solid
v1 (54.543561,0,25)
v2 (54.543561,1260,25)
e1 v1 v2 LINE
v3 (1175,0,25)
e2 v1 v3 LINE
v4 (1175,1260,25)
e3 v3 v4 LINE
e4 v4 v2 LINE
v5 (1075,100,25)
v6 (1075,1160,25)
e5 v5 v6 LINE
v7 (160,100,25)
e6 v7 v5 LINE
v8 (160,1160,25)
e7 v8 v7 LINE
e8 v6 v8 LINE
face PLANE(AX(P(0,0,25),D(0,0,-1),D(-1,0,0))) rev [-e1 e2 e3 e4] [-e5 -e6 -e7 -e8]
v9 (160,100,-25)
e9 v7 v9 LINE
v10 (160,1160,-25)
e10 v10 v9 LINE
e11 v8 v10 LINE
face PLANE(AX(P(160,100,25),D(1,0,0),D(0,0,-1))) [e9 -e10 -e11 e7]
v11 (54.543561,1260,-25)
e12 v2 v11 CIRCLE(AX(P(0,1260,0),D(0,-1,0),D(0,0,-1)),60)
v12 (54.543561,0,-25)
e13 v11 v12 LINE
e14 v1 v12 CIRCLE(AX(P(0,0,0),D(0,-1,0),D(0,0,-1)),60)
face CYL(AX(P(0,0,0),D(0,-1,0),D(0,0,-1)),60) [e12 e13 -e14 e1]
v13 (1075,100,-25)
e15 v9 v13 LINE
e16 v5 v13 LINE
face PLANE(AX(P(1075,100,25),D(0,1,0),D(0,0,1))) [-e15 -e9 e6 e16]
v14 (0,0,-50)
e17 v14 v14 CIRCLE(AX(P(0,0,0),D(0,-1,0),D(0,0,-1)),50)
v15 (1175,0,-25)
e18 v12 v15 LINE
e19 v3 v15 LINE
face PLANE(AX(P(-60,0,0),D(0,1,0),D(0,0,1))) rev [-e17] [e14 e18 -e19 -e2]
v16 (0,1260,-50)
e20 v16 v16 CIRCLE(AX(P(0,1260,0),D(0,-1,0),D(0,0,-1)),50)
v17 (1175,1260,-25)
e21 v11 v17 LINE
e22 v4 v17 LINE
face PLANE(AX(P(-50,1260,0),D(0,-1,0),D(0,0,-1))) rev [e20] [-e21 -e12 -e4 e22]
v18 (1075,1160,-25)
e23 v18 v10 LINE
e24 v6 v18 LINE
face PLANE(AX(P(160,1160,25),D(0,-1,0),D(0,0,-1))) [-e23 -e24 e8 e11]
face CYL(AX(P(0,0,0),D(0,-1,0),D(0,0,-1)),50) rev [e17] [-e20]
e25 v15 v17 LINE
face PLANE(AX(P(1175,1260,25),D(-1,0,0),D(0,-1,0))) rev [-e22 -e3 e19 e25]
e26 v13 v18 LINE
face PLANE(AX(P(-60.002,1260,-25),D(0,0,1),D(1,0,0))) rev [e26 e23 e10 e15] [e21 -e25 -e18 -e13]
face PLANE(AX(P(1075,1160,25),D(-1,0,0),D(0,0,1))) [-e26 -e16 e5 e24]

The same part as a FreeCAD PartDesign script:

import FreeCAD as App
import Part
import Sketcher
Q = App.Units.Quantity

doc = App.newDocument("Part")
body = doc.addObject("PartDesign::Body", "Body")

# Sketch on XY plane
sketch1 = doc.addObject("Sketcher::SketchObject", "Sketch")
body.addObject(sketch1)
sketch1.AttachmentSupport = (doc.XY_Plane, [""])
sketch1.MapMode = "FlatFace"
sketch1.addGeometry([
    Part.LineSegment(App.Vector(-60, 1260, 0), App.Vector(-60, 0, 0)),
    Part.LineSegment(App.Vector(-60, 0, 0), App.Vector(-50, 0, 0)),
    Part.LineSegment(App.Vector(-50, 0, 0), App.Vector(-50, 1260, 0)),
    Part.LineSegment(App.Vector(-50, 1260, 0), App.Vector(-60, 1260, 0)),
], False)
sketch1.addConstraint([
    Sketcher.Constraint("Coincident", 0, 2, 1, 1),
    Sketcher.Constraint("Coincident", 1, 2, 2, 1),
    Sketcher.Constraint("Coincident", 2, 2, 3, 1),
    Sketcher.Constraint("Coincident", 3, 2, 0, 1),
    Sketcher.Constraint("Vertical", 0),
    Sketcher.Constraint("Horizontal", 1),
    Sketcher.Constraint("Vertical", 2),
    Sketcher.Constraint("Horizontal", 3),
    Sketcher.Constraint("PointOnObject", 0, 2, -1),
    Sketcher.Constraint("DistanceX", 1, 1, 1, 2, Q("10 mm")),
    Sketcher.Constraint("DistanceY", 0, 2, 0, 1, Q("1260 mm")),
    Sketcher.Constraint("DistanceX", 0, 2, -1, 1, Q("60 mm")),
])
revolution = doc.addObject("PartDesign::Revolution", "Revolution")
body.addObject(revolution)
revolution.Profile = sketch1
revolution.ReferenceAxis = (sketch1, ["V_Axis"])
revolution.Angle = 360
body2 = doc.addObject("PartDesign::Body", "Body001")

# Sketch on XY plane
sketch2 = doc.addObject("Sketcher::SketchObject", "Sketch001")
body2.addObject(sketch2)
sketch2.AttachmentSupport = (doc.getObject("XY_Plane001"), [""])
sketch2.MapMode = "FlatFace"
sketch2.addGeometry([
    Part.LineSegment(App.Vector(60, 1260, 0), App.Vector(60, 0, 0)),  # 0
    Part.LineSegment(App.Vector(60, 0, 0), App.Vector(1175, 0, 0)),  # 1
    Part.LineSegment(App.Vector(1175, 0, 0), App.Vector(1175, 1260, 0)),  # 2
    Part.LineSegment(App.Vector(1175, 1260, 0), App.Vector(60, 1260, 0)),  # 3
    Part.LineSegment(App.Vector(1075, 100, 0), App.Vector(160, 100, 0)),  # 4
    Part.LineSegment(App.Vector(160, 100, 0), App.Vector(160, 1160, 0)),  # 5
    Part.LineSegment(App.Vector(160, 1160, 0), App.Vector(1075, 1160, 0)),  # 6
    Part.LineSegment(App.Vector(1075, 1160, 0), App.Vector(1075, 100, 0)),  # 7
], False)
sketch2.addConstraint([
    Sketcher.Constraint("Coincident", 0, 2, 1, 1),
    Sketcher.Constraint("Coincident", 1, 2, 2, 1),
    Sketcher.Constraint("Coincident", 2, 2, 3, 1),
    Sketcher.Constraint("Coincident", 3, 2, 0, 1),
    Sketcher.Constraint("Coincident", 4, 2, 5, 1),
    Sketcher.Constraint("Coincident", 5, 2, 6, 1),
    Sketcher.Constraint("Coincident", 6, 2, 7, 1),
    Sketcher.Constraint("Coincident", 7, 2, 4, 1),
    Sketcher.Constraint("Vertical", 0),
    Sketcher.Constraint("Horizontal", 1),
    Sketcher.Constraint("Vertical", 2),
    Sketcher.Constraint("Horizontal", 3),
    Sketcher.Constraint("Horizontal", 4),
    Sketcher.Constraint("Vertical", 5),
    Sketcher.Constraint("Horizontal", 6),
    Sketcher.Constraint("Vertical", 7),
    Sketcher.Constraint("PointOnObject", 0, 2, -1),
    Sketcher.Constraint("DistanceX", 1, 1, 1, 2, Q("1115 mm")),
    Sketcher.Constraint("DistanceX", 4, 2, 4, 1, Q("915 mm")),
    Sketcher.Constraint("DistanceY", 0, 2, 0, 1, Q("1260 mm")),
    Sketcher.Constraint("DistanceY", 5, 1, 5, 2, Q("1060 mm")),
    Sketcher.Constraint("DistanceX", -1, 1, 0, 2, Q("60 mm")),
    Sketcher.Constraint("DistanceX", -1, 1, 4, 2, Q("160 mm")),
    Sketcher.Constraint("DistanceY", -1, 1, 4, 2, Q("100 mm")),
])
pad1 = doc.addObject("PartDesign::Pad", "Pad")
body2.addObject(pad1)
pad1.Profile = sketch2
pad1.Length = 50
pad1.Midplane = True
body.AllowCompound = True
doc.recompute()

boolean = doc.addObject("PartDesign::Boolean", "Boolean")
body.addObject(boolean)
boolean.Type = "Fuse"
boolean.addObjects([body2])

# Sketch on YZ plane
sketch3 = doc.addObject("Sketcher::SketchObject", "Sketch002")
body.addObject(sketch3)
sketch3.AttachmentSupport = (doc.YZ_Plane, [""])
sketch3.MapMode = "FlatFace"
sketch3.AttachmentOffset = App.Placement(App.Vector(0, 0, 60), App.Rotation())
sketch3.addGeometry([
    Part.LineSegment(App.Vector(1260, -25, 0), App.Vector(0, -25, 0)),
    Part.LineSegment(App.Vector(0, -25, 0), App.Vector(0, 25, 0)),
    Part.LineSegment(App.Vector(0, 25, 0), App.Vector(1260, 25, 0)),
    Part.LineSegment(App.Vector(1260, 25, 0), App.Vector(1260, -25, 0)),
], False)
sketch3.addConstraint([
    Sketcher.Constraint("Coincident", 0, 2, 1, 1),
    Sketcher.Constraint("Coincident", 1, 2, 2, 1),
    Sketcher.Constraint("Coincident", 2, 2, 3, 1),
    Sketcher.Constraint("Coincident", 3, 2, 0, 1),
    Sketcher.Constraint("Horizontal", 0),
    Sketcher.Constraint("Vertical", 1),
    Sketcher.Constraint("Horizontal", 2),
    Sketcher.Constraint("Vertical", 3),
    Sketcher.Constraint("Symmetric", 0, 2, 1, 2, -1, 1),
    Sketcher.Constraint("DistanceX", 0, 2, 0, 1, Q("1260 mm")),
    Sketcher.Constraint("DistanceY", 1, 1, 1, 2, Q("50 mm")),
])
pad2 = doc.addObject("PartDesign::Pad", "Pad001")
body.addObject(pad2)
pad2.Profile = sketch3
pad2.Length = 10
pad2.Reversed = True

doc.recompute()
